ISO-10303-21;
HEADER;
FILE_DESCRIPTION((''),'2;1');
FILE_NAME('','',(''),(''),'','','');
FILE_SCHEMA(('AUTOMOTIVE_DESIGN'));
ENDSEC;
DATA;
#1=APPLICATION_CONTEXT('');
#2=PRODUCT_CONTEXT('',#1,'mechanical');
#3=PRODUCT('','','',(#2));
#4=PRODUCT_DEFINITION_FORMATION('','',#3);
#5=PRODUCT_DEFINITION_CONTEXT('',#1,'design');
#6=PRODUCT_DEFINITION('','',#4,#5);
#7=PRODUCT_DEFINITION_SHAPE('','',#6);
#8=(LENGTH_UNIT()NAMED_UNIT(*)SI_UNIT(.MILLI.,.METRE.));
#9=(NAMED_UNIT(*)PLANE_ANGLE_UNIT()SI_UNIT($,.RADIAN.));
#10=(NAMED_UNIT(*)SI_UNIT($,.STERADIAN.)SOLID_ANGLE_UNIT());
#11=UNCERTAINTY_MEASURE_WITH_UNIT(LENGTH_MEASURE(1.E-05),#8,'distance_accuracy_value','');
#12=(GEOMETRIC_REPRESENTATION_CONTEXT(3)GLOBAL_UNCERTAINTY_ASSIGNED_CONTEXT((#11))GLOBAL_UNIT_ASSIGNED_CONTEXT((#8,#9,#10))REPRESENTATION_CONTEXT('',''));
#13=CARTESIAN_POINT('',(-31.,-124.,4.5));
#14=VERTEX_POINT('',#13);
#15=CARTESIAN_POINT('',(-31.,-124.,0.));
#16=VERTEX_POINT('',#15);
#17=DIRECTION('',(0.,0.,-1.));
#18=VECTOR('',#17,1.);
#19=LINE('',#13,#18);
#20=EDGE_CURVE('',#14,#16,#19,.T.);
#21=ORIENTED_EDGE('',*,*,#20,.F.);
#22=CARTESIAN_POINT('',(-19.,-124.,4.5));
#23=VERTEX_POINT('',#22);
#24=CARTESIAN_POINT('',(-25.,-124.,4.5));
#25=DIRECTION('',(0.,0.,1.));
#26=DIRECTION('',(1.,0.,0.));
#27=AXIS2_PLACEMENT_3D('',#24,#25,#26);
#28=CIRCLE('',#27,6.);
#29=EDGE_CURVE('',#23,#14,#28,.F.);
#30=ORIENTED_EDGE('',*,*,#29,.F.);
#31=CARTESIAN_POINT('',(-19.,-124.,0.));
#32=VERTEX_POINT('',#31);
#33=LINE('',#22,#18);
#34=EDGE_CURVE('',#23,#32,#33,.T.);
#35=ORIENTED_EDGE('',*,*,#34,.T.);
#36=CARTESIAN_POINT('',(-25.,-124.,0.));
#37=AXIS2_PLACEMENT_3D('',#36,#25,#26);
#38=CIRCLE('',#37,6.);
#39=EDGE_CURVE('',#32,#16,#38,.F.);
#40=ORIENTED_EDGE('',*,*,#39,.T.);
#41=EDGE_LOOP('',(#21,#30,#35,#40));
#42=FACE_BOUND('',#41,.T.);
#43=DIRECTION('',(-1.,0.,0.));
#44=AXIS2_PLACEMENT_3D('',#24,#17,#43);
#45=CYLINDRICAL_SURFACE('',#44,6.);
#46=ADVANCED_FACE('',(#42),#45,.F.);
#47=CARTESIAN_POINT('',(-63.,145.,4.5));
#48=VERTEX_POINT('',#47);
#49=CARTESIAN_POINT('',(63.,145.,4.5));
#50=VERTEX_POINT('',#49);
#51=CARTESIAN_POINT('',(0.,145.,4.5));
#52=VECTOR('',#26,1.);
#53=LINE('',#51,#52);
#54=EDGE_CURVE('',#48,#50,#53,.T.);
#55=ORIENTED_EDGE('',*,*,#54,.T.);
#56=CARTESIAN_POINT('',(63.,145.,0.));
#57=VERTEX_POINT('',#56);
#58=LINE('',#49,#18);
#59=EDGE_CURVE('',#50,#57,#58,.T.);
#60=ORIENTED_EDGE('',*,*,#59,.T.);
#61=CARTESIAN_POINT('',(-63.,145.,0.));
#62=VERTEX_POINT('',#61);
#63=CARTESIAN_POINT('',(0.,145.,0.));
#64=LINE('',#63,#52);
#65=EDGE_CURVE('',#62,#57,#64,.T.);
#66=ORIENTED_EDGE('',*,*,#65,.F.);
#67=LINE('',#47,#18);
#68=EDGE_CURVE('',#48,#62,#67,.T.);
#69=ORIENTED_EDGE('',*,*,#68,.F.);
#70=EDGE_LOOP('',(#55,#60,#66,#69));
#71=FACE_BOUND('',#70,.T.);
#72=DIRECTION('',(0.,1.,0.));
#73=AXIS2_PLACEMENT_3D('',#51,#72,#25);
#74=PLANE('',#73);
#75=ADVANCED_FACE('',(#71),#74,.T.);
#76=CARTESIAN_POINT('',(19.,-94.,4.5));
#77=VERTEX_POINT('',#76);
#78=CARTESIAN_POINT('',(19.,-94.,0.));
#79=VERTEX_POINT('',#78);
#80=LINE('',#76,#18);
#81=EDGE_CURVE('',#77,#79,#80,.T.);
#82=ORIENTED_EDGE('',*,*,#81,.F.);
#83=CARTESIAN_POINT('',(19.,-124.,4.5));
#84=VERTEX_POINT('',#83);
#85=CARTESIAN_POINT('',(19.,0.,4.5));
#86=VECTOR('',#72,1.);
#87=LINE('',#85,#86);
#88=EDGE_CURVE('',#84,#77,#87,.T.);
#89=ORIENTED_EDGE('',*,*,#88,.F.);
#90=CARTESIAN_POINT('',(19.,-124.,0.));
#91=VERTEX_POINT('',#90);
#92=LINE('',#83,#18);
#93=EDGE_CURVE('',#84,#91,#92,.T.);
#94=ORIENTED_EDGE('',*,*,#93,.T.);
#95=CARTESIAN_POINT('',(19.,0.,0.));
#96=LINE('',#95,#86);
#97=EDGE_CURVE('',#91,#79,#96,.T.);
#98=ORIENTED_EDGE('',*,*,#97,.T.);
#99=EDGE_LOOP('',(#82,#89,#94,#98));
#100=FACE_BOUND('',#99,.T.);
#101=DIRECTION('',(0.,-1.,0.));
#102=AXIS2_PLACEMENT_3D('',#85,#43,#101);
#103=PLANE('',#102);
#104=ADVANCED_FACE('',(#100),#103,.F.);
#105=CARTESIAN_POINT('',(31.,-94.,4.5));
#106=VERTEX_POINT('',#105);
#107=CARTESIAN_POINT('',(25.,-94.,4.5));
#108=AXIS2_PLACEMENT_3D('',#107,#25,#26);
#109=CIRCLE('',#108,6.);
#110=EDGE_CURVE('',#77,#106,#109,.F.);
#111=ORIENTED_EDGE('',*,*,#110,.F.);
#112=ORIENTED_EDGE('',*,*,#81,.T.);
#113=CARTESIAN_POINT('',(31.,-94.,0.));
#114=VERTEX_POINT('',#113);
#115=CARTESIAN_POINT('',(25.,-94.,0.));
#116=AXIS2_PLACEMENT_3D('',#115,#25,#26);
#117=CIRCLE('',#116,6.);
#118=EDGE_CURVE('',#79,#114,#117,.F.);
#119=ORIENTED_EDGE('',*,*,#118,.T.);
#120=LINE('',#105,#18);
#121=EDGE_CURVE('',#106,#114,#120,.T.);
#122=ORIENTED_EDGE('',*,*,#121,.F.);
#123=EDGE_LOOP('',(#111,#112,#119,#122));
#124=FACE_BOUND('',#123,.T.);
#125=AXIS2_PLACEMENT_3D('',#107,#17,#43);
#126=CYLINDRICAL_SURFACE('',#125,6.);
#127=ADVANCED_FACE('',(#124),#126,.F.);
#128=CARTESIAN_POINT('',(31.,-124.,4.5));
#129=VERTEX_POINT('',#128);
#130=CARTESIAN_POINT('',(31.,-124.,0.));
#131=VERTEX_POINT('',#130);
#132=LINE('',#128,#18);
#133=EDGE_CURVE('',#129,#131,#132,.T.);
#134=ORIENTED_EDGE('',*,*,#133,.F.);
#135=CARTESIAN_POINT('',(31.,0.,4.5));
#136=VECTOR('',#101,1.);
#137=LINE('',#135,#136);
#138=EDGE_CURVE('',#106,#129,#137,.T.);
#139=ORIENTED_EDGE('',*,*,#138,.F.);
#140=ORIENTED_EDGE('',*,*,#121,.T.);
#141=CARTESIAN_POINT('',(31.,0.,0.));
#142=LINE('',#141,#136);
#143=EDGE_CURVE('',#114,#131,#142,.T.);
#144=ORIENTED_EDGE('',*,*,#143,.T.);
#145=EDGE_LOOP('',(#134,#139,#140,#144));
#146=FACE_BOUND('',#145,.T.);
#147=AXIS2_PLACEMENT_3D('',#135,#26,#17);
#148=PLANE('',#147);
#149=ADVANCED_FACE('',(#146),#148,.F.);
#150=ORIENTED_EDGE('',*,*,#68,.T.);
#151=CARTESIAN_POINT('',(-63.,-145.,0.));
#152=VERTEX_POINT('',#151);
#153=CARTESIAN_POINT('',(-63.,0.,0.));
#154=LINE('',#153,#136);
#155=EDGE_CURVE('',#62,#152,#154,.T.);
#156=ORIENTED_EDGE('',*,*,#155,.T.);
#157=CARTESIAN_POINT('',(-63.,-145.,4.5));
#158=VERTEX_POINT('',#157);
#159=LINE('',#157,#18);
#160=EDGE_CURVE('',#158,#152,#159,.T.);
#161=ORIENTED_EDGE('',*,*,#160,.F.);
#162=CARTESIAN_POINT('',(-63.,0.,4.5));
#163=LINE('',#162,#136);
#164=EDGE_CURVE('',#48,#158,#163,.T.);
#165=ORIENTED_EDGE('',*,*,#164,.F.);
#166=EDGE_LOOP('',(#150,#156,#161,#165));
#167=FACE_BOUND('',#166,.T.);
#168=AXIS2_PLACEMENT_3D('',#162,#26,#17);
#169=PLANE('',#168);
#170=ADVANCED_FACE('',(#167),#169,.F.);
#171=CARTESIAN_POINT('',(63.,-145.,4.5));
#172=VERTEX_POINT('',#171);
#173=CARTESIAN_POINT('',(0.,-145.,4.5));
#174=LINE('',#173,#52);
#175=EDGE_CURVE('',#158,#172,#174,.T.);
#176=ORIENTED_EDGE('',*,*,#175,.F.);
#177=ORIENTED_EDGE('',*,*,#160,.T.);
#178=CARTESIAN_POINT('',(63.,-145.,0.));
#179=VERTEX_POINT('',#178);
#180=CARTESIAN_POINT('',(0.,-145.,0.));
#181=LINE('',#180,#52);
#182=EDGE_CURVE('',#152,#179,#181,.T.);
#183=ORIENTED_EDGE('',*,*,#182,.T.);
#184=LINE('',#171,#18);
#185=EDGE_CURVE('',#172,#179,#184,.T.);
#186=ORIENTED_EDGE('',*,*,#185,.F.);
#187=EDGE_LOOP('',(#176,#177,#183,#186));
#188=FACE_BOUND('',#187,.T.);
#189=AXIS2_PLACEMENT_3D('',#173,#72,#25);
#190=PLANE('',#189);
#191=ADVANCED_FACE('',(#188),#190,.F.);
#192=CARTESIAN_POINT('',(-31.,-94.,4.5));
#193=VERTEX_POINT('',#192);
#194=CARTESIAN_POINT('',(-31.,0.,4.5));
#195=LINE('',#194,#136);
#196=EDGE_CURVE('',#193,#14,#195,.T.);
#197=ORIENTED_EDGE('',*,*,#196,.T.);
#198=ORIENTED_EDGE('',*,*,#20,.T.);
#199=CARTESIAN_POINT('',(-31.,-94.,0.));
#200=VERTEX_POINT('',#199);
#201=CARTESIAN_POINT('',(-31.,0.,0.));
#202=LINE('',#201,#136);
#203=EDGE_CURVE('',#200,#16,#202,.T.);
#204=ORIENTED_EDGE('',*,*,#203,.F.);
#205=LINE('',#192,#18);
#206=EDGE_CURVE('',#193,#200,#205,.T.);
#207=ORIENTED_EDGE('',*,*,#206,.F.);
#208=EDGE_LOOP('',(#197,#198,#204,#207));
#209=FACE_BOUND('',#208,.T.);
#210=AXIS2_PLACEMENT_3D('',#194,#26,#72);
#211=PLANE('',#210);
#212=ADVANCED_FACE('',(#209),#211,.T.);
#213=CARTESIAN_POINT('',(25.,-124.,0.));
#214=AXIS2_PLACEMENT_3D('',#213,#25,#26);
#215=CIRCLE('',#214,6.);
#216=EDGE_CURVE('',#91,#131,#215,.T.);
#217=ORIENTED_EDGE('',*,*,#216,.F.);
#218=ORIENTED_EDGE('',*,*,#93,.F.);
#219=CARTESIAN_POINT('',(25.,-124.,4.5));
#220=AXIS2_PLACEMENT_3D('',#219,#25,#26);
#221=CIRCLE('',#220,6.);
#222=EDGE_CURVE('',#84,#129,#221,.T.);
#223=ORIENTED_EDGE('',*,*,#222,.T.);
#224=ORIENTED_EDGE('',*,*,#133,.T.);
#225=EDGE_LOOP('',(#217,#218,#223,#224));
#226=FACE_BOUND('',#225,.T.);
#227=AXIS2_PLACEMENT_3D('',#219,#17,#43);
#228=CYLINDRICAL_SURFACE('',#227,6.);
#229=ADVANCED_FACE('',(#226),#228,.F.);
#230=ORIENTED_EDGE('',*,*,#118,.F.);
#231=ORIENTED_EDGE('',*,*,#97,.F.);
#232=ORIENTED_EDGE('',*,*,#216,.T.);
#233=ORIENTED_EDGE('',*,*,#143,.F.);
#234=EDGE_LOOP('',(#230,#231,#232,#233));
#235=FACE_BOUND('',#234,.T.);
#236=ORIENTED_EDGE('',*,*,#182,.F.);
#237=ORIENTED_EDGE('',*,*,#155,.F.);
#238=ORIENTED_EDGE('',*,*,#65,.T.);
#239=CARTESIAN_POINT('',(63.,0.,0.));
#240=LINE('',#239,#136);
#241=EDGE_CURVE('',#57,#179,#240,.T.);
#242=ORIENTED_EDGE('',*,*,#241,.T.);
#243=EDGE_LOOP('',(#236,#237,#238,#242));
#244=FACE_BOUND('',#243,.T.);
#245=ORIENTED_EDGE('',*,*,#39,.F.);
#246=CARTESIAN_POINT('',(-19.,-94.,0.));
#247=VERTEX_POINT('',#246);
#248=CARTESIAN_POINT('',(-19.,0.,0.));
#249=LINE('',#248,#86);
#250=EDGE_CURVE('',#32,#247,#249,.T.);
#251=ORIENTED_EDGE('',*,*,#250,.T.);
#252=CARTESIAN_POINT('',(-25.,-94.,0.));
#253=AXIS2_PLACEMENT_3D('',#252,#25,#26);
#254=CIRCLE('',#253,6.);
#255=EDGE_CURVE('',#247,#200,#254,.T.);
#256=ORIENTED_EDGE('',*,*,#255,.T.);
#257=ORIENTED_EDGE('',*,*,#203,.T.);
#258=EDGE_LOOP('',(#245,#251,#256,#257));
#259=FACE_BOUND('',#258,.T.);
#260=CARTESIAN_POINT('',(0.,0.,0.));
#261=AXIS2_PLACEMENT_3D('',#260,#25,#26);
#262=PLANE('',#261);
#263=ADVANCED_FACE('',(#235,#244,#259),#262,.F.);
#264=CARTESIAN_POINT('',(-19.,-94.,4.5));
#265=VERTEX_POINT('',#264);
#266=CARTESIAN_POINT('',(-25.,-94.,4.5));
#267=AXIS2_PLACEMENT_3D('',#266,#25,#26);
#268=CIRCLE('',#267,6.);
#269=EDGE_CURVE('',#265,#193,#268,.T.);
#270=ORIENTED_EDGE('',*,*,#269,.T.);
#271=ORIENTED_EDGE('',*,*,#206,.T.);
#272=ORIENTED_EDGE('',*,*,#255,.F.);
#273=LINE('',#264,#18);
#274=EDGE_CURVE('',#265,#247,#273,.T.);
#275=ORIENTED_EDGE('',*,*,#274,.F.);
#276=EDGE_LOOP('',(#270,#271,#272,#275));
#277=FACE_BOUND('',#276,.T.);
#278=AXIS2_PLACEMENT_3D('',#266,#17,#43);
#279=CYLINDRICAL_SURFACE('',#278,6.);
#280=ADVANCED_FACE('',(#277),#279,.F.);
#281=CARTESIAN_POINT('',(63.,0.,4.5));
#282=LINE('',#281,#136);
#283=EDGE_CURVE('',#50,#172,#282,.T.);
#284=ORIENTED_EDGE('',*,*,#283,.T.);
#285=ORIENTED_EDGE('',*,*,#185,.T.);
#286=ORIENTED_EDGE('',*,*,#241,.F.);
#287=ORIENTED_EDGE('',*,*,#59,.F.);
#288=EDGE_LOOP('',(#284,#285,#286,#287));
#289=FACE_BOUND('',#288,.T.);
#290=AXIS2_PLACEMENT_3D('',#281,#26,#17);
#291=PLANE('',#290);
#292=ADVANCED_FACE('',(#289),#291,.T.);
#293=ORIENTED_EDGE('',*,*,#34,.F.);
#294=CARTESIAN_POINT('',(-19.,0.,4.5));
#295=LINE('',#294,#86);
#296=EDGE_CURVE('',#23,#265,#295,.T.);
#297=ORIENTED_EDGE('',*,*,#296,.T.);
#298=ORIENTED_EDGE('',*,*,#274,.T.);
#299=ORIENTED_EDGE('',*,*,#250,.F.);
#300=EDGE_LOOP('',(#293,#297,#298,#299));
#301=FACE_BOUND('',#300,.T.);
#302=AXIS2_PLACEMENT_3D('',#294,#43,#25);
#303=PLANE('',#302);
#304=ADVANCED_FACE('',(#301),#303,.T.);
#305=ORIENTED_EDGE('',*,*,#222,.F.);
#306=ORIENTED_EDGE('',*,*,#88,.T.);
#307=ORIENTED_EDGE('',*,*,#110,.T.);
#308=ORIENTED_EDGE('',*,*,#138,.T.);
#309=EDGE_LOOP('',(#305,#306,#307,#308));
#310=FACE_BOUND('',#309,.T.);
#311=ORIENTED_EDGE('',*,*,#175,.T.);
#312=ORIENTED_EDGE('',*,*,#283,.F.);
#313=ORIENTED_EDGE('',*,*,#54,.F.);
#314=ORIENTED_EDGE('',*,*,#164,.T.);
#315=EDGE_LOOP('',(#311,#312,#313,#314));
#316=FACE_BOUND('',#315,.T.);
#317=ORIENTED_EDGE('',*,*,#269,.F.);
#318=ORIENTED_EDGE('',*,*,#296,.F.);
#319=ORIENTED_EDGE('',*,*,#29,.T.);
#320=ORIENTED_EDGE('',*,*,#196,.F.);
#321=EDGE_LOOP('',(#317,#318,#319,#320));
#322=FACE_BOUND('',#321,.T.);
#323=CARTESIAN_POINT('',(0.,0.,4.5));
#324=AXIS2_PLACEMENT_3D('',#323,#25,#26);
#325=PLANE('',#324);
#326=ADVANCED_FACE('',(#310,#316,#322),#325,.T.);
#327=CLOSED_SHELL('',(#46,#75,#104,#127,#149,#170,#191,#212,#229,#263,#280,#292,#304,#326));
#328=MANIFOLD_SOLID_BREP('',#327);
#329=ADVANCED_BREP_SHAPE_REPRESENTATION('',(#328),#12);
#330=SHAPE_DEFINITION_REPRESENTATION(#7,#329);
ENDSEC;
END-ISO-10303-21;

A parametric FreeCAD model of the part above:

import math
import FreeCAD as App
import Part
import Sketcher

V = App.Vector
Q = App.Units.Quantity


def add_polygon(sketch, points):
    """Adds a closed chain of lines whose ends are joined by coincident constraints."""
    first, n = sketch.GeometryCount, len(points)
    for a, b in zip(points, points[1:] + points[:1]):
        sketch.addGeometry(Part.LineSegment(App.Vector(*a, 0), App.Vector(*b, 0)), False)
    for i in range(n):
        sketch.addConstraint(Sketcher.Constraint("Coincident", first + i, 2, first + (i + 1) % n, 1))

doc = App.newDocument("Part")
params = doc.addObject("Spreadsheet::Sheet", "Params")
for row, (alias, value) in enumerate([
    ("sketch1_radius", "6 mm"),
    ("sketch1_width", "126 mm"),
    ("sketch1_height", "290 mm"),
    ("sketch1_height2", "30 mm"),
    ("pad1_length", "4.5 mm"),
], start=1):
    params.set(f"A{row}", alias)
    params.set(f"B{row}", "=" + value)
    params.setAlias(f"B{row}", alias)

body = doc.addObject("PartDesign::Body", "Body")

sketch1 = doc.addObject("Sketcher::SketchObject", "Sketch")
body.addObject(sketch1)
sketch1.AttachmentSupport = (doc.XY_Plane, [""])
sketch1.MapMode = "FlatFace"
add_polygon(sketch1, [(-63, 145), (-63, -145), (63, -145), (63, 145)])
sketch1.addGeometry(Part.LineSegment(V(-19, -94, 0), V(-19, -124, 0)), False)
sketch1.addGeometry(Part.ArcOfCircle(Part.Circle(V(-25, -124, 0), V(0, 0, 1), 6), math.radians(180), math.radians(360)), False)
sketch1.addGeometry(Part.LineSegment(V(-31, -124, 0), V(-31, -94, 0)), False)
sketch1.addGeometry(Part.ArcOfCircle(Part.Circle(V(-25, -94, 0), V(0, 0, 1), 6), math.radians(0), math.radians(180)), False)
sketch1.addGeometry(Part.LineSegment(V(31, -94, 0), V(31, -124, 0)), False)
sketch1.addGeometry(Part.ArcOfCircle(Part.Circle(V(25, -124, 0), V(0, 0, 1), 6), math.radians(180), math.radians(360)), False)
sketch1.addGeometry(Part.LineSegment(V(19, -124, 0), V(19, -94, 0)), False)
sketch1.addGeometry(Part.ArcOfCircle(Part.Circle(V(25, -94, 0), V(0, 0, 1), 6), math.radians(0), math.radians(180)), False)
sketch1.addConstraint([
    Sketcher.Constraint("Tangent", 4, 2, 5, 2),
    Sketcher.Constraint("Tangent", 5, 1, 6, 1),
    Sketcher.Constraint("Tangent", 6, 2, 7, 2),
    Sketcher.Constraint("Tangent", 7, 1, 4, 1),
    Sketcher.Constraint("Tangent", 8, 2, 9, 2),
    Sketcher.Constraint("Tangent", 9, 1, 10, 1),
    Sketcher.Constraint("Tangent", 10, 2, 11, 2),
    Sketcher.Constraint("Tangent", 11, 1, 8, 1),
    Sketcher.Constraint("Vertical", 0),
    Sketcher.Constraint("Horizontal", 1),
    Sketcher.Constraint("Vertical", 2),
    Sketcher.Constraint("Horizontal", 3),
    Sketcher.Constraint("Vertical", 4),
    Sketcher.Constraint("Vertical", 6),
    Sketcher.Constraint("Vertical", 8),
    Sketcher.Constraint("Vertical", 10),
    Sketcher.Constraint("Equal", 7, 9),
    Sketcher.Constraint("Symmetric", 0, 2, 2, 2, -1, 1),
    Sketcher.Constraint("Symmetric", 5, 3, 9, 3, -2),
    Sketcher.Constraint("Horizontal", 7, 3, 11, 3),
    Sketcher.Constraint("Radius", 5, Q("6 mm")),
    Sketcher.Constraint("DistanceX", 1, 1, 1, 2, Q("126 mm")),
    Sketcher.Constraint("DistanceY", 0, 2, 0, 1, Q("290 mm")),
    Sketcher.Constraint("DistanceY", 4, 2, 4, 1, Q("30 mm")),
    Sketcher.Constraint("DistanceX", 5, 3, -1, 1, Q("25 mm")),
    Sketcher.Constraint("DistanceY", 5, 3, -1, 1, Q("124 mm")),
])
sketch1.setExpression("Constraints[24]", "Params.sketch1_radius")
sketch1.setExpression("Constraints[25]", "Params.sketch1_width")
sketch1.setExpression("Constraints[26]", "Params.sketch1_height")
sketch1.setExpression("Constraints[27]", "Params.sketch1_height2")
pad1 = doc.addObject("PartDesign::Pad", "Pad")
body.addObject(pad1)
pad1.Profile = sketch1
pad1.setExpression("Length", "Params.pad1_length")

doc.recompute()
